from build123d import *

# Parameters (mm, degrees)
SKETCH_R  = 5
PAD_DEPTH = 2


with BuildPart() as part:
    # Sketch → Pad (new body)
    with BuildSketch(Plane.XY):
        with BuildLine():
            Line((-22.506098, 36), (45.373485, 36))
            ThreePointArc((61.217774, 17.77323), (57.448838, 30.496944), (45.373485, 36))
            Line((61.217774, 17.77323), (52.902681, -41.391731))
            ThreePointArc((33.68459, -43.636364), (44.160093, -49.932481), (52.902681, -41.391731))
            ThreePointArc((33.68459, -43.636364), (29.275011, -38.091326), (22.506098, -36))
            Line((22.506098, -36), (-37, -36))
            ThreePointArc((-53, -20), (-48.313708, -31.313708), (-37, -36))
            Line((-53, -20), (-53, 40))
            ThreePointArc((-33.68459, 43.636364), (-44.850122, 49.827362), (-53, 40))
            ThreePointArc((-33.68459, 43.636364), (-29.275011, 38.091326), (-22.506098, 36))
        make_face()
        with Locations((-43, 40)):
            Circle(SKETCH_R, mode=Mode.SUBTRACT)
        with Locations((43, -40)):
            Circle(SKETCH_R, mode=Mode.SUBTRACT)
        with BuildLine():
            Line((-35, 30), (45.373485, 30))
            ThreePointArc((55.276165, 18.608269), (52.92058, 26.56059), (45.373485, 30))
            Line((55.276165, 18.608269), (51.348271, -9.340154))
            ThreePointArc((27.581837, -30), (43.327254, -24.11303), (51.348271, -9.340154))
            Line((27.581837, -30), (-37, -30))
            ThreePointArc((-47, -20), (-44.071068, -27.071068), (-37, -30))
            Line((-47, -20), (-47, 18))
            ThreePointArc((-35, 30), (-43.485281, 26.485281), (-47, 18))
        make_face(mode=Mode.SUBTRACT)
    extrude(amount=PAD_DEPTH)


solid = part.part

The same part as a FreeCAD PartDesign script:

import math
import FreeCAD as App
import Part
import Sketcher

V = App.Vector
Q = App.Units.Quantity

doc = App.newDocument("Part")
params = doc.addObject("Spreadsheet::Sheet", "Params")
for row, (alias, value) in enumerate([
    ("sketch1_diameter", "10 mm"),
    ("sketch1_radius", "12 mm"),
    ("sketch1_radius2", "10 mm"),
    ("sketch1_radius3", "16.000002 mm"),
    ("sketch1_radius4", "24 mm"),
    ("pad1_length", "2 mm"),
], start=1):
    params.set(f"A{row}", alias)
    params.set(f"B{row}", "=" + value)
    params.setAlias(f"B{row}", alias)

body = doc.addObject("PartDesign::Body", "Body")

sketch1 = body.newObject("Sketcher::SketchObject", "Sketch")
sketch1.AttachmentSupport = (doc.getObject("XY_Plane"), [""])
sketch1.MapMode = "FlatFace"
sketch1.addGeometry([
    Part.LineSegment(V(45, 36, 0), V(-23, 36, 0)),
    Part.ArcOfCircle(Part.Circle(V(-23, 48, 0), V(0, 0, 1), 12), math.radians(-159), math.radians(-90)),
    Part.ArcOfCircle(Part.Circle(V(-43, 40, 0), V(0, 0, 1), 10), math.radians(21), math.radians(180)),
    Part.LineSegment(V(-53, 40, 0), V(-53, -20, 0)),
    Part.ArcOfCircle(Part.Circle(V(-37, -20, 0), V(0, 0, 1), 16), math.radians(-180), math.radians(-90)),
    Part.LineSegment(V(-37, -36, 0), V(23, -36, 0)),
    Part.ArcOfCircle(Part.Circle(V(23, -48, 0), V(0, 0, 1), 12), math.radians(21), math.radians(90)),
    Part.ArcOfCircle(Part.Circle(V(43, -40, 0), V(0, 0, 1), 10), math.radians(-159), math.radians(-8)),
    Part.LineSegment(V(53, -41, 0), V(61, 18, 0)),
    Part.ArcOfCircle(Part.Circle(V(45, 20, 0), V(0, 0, 1), 16), math.radians(-8), math.radians(90)),
    Part.Circle(V(43, -40, 0), V(0, 0, 1), 5),
    Part.LineSegment(V(-35, 30, 0), V(45, 30, 0)),
    Part.ArcOfCircle(Part.Circle(V(45, 20, 0), V(0, 0, 1), 10), math.radians(-8), math.radians(90)),
    Part.LineSegment(V(55, 19, 0), V(51, -9, 0)),
    Part.ArcOfCircle(Part.Circle(V(28, -6, 0), V(0, 0, 1), 24), math.radians(-90), math.radians(-8)),
    Part.LineSegment(V(28, -30, 0), V(-37, -30, 0)),
    Part.ArcOfCircle(Part.Circle(V(-37, -20, 0), V(0, 0, 1), 10), math.radians(180), math.radians(270)),
    Part.LineSegment(V(-47, -20, 0), V(-47, 18, 0)),
    Part.ArcOfCircle(Part.Circle(V(-35, 18, 0), V(0, 0, 1), 12), math.radians(90), math.radians(180)),
    Part.Circle(V(-43, 40, 0), V(0, 0, 1), 5),
], False)
sketch1.addConstraint([
    Sketcher.Constraint("Tangent", 0, 2, 1, 2),
    Sketcher.Constraint("Tangent", 1, 1, 2, 1),
    Sketcher.Constraint("Tangent", 2, 2, 3, 1),
    Sketcher.Constraint("Tangent", 3, 2, 4, 1),
    Sketcher.Constraint("Tangent", 4, 2, 5, 1),
    Sketcher.Constraint("Tangent", 5, 2, 6, 2),
    Sketcher.Constraint("Tangent", 6, 1, 7, 1),
    Sketcher.Constraint("Tangent", 7, 2, 8, 1),
    Sketcher.Constraint("Tangent", 8, 2, 9, 1),
    Sketcher.Constraint("Tangent", 9, 2, 0, 1),
    Sketcher.Constraint("Tangent", 11, 2, 12, 2),
    Sketcher.Constraint("Tangent", 12, 1, 13, 1),
    Sketcher.Constraint("Tangent", 13, 2, 14, 2),
    Sketcher.Constraint("Tangent", 14, 1, 15, 1),
    Sketcher.Constraint("Tangent", 15, 2, 16, 2),
    Sketcher.Constraint("Tangent", 16, 1, 17, 1),
    Sketcher.Constraint("Tangent", 17, 2, 18, 2),
    Sketcher.Constraint("Tangent", 18, 1, 11, 1),
    Sketcher.Constraint("Horizontal", 0),
    Sketcher.Constraint("Vertical", 3),
    Sketcher.Constraint("Horizontal", 5),
    Sketcher.Constraint("Horizontal", 11),
    Sketcher.Constraint("Horizontal", 15),
    Sketcher.Constraint("Vertical", 17),
    Sketcher.Constraint("Coincident", 10, 3, 7, 3),
    Sketcher.Constraint("Coincident", 12, 3, 9, 3),
    Sketcher.Constraint("Coincident", 16, 3, 4, 3),
    Sketcher.Constraint("Coincident", 19, 3, 2, 3),
    Sketcher.Constraint("Equal", 1, 6),
    Sketcher.Constraint("Equal", 2, 7),
    Sketcher.Constraint("Equal", 4, 9),
    Sketcher.Constraint("Equal", 7, 12),
    Sketcher.Constraint("Equal", 12, 16),
    Sketcher.Constraint("Equal", 6, 18),
    Sketcher.Constraint("Equal", 10, 19),
    Sketcher.Constraint("Symmetric", 1, 3, 6, 3, -1, 1),
    Sketcher.Constraint("Parallel", 8, 13),
    Sketcher.Constraint("Diameter", 10, 10.0),
    Sketcher.Constraint("Radius", 1, 12.0),
    Sketcher.Constraint("Radius", 2, 10.0),
    Sketcher.Constraint("Radius", 4, 16.000002),
    Sketcher.Constraint("Radius", 14, 24.0),
    Sketcher.Constraint("DistanceY", 3, 2, 3, 1, 60.0),
    Sketcher.Constraint("DistanceY", 17, 1, 17, 2, 38.0),
    Sketcher.Constraint("Angle", 8, Q("82 deg")),
    Sketcher.Constraint("DistanceX", 2, 3, -1, 1, 43.0),
    Sketcher.Constraint("DistanceX", -1, 1, 7, 3, 43.0),
])
sketch1.setExpression("Constraints[37]", "Params.sketch1_diameter")
sketch1.setExpression("Constraints[38]", "Params.sketch1_radius")
sketch1.setExpression("Constraints[39]", "Params.sketch1_radius2")
sketch1.setExpression("Constraints[40]", "Params.sketch1_radius3")
sketch1.setExpression("Constraints[41]", "Params.sketch1_radius4")
pad1 = body.newObject("PartDesign::Pad", "Pad")
pad1.Profile = sketch1
pad1.setExpression("Length", "Params.pad1_length")

doc.recompute()
